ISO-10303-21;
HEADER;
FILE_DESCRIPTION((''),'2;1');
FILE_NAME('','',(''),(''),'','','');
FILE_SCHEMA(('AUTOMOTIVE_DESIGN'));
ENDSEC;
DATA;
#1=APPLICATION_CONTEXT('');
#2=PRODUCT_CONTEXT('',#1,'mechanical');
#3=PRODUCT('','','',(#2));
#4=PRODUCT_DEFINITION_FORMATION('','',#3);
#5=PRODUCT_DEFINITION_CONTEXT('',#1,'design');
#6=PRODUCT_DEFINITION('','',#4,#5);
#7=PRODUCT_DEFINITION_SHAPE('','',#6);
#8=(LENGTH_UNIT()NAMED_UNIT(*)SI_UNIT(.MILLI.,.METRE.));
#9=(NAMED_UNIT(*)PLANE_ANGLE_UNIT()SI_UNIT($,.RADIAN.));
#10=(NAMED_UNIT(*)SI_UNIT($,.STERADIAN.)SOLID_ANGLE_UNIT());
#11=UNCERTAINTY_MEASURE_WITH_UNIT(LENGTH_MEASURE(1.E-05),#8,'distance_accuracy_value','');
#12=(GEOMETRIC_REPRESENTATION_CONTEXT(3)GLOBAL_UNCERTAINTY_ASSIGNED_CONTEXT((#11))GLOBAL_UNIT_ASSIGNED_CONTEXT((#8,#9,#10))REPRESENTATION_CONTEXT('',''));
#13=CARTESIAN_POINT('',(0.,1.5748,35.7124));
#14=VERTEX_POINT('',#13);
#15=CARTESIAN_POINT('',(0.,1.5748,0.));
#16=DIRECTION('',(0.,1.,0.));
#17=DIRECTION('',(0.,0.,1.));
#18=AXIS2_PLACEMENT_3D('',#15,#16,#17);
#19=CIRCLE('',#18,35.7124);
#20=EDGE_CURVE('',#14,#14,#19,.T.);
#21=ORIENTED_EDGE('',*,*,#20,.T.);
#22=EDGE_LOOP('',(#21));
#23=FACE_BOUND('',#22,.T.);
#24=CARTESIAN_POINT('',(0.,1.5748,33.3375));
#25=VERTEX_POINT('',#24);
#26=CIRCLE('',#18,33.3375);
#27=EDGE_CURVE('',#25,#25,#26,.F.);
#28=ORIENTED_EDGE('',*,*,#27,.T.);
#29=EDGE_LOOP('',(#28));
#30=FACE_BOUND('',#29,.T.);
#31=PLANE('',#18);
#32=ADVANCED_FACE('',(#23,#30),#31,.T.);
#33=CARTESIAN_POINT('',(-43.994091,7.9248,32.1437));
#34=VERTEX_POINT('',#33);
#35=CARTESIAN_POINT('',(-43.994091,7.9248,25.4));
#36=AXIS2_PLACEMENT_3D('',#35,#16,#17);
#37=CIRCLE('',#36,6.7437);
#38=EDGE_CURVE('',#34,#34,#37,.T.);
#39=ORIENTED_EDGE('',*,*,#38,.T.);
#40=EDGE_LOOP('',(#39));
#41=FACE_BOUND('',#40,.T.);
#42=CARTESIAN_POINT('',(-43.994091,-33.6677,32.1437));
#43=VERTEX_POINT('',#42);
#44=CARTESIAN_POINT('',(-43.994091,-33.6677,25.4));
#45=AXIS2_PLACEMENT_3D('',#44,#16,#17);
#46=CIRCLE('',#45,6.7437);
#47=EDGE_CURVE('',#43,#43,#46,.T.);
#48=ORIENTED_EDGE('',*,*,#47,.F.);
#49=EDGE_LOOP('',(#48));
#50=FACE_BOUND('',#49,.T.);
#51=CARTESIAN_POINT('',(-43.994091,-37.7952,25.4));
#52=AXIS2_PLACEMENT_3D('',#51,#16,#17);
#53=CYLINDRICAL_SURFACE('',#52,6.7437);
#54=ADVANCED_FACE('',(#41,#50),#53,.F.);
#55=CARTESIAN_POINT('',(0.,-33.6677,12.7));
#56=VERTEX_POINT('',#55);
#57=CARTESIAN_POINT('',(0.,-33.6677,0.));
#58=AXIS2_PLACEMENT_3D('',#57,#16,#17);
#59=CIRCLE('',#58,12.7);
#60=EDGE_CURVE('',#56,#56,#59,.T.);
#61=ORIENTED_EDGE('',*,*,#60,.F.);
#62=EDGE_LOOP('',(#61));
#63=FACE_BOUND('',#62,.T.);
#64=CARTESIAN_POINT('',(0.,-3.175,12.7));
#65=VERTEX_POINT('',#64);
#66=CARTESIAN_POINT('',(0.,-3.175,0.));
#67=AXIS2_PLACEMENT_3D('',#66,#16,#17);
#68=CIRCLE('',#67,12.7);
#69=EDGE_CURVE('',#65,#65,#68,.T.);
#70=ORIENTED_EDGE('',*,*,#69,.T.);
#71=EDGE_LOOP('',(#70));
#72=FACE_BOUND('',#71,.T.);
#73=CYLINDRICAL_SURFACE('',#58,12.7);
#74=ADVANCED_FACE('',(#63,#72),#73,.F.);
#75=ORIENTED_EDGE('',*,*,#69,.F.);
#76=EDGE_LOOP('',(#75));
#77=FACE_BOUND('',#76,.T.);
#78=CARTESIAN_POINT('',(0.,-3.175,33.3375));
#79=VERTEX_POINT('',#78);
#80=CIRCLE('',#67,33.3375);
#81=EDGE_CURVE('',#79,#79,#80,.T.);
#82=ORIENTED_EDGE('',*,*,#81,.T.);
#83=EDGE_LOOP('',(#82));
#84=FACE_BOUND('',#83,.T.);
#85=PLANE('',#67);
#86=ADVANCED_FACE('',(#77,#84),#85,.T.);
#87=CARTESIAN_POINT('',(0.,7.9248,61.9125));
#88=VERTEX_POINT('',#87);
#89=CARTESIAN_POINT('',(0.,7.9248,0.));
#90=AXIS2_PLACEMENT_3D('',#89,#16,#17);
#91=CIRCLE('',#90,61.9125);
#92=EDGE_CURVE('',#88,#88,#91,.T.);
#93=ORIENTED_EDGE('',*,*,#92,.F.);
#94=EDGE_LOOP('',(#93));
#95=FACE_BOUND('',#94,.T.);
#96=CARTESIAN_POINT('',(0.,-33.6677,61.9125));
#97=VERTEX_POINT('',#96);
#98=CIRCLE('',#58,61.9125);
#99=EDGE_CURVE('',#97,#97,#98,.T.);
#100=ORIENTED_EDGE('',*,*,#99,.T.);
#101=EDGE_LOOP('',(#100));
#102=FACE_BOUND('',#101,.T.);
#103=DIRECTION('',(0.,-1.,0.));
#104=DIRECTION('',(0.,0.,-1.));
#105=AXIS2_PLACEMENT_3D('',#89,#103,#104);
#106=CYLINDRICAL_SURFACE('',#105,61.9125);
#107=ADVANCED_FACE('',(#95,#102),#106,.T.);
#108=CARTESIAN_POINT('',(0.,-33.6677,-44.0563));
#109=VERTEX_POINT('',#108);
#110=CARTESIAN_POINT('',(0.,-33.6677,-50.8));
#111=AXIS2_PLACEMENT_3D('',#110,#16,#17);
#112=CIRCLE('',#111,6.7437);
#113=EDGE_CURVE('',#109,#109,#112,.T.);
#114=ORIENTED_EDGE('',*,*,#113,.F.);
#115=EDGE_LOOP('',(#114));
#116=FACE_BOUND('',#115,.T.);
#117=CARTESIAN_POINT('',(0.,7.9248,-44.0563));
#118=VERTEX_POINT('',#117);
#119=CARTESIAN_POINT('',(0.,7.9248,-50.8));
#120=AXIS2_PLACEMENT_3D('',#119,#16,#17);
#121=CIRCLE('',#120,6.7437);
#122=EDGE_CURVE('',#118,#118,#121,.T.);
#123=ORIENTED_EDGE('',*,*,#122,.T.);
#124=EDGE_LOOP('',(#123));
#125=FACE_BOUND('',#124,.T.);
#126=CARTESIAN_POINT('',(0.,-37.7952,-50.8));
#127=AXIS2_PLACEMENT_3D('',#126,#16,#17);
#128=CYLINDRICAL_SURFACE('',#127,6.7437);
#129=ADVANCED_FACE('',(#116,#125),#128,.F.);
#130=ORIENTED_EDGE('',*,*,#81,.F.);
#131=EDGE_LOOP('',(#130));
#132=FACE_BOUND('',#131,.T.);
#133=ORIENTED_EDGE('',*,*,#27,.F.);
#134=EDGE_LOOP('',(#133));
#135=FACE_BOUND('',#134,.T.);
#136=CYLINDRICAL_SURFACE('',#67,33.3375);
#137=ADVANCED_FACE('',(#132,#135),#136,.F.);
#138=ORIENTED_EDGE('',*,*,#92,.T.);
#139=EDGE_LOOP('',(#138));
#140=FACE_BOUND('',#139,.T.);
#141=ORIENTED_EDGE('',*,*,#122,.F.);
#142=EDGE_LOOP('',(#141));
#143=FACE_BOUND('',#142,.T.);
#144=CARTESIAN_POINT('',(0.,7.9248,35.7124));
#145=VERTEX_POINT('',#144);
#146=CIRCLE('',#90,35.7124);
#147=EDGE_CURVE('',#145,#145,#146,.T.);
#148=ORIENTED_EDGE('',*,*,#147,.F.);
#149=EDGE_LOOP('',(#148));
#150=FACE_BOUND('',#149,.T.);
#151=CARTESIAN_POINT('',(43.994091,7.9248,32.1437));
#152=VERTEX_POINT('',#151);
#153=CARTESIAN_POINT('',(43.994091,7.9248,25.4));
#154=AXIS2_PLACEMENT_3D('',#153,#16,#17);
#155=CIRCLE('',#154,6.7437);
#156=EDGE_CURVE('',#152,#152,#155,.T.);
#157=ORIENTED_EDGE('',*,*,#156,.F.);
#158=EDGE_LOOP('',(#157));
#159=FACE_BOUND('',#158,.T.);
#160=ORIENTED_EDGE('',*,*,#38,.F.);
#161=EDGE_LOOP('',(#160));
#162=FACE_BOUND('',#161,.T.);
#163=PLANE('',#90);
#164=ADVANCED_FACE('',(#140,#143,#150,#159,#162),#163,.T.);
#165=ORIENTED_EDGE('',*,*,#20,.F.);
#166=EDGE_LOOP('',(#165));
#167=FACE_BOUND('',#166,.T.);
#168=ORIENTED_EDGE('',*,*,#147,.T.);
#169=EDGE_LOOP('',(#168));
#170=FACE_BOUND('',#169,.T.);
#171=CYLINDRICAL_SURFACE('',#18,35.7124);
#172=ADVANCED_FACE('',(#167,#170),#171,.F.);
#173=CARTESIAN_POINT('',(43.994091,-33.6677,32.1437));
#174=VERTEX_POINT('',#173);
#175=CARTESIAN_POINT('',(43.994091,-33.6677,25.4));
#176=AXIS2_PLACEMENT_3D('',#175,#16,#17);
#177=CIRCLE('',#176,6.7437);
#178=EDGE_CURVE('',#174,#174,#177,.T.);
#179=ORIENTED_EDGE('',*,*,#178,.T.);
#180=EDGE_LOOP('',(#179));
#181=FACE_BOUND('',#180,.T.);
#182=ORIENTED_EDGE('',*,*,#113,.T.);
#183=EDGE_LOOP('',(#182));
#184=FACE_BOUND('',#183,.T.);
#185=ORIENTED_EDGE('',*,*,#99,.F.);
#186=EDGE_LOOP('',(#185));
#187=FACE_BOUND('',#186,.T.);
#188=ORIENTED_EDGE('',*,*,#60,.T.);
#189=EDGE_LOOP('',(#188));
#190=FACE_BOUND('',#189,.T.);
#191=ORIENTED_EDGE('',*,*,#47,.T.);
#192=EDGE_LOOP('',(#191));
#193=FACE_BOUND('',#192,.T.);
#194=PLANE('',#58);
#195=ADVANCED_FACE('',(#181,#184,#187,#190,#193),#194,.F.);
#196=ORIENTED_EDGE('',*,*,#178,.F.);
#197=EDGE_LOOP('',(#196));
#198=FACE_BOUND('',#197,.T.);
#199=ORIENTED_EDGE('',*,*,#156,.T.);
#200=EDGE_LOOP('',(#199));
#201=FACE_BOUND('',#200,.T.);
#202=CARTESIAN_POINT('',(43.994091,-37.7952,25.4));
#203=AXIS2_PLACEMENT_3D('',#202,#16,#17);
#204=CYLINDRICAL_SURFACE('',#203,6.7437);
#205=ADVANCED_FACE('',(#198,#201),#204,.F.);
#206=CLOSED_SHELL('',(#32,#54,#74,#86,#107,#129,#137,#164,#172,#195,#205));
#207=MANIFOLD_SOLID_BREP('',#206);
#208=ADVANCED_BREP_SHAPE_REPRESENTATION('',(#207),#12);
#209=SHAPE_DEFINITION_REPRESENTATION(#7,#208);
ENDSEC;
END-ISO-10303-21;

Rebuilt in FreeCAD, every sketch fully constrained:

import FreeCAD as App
import Part
import Sketcher

V = App.Vector
Q = App.Units.Quantity

doc = App.newDocument("Part")
body = doc.addObject("PartDesign::Body", "Body")

sketch1 = body.newObject("Sketcher::SketchObject", "Sketch")
sketch1.AttachmentSupport = (doc.getObject("XZ_Plane"), [""])
sketch1.MapMode = "FlatFace"
sketch1.addGeometry(Part.Circle(V(0, 0, 0), V(0, 0, 1), 61.9125), False)
sketch1.addConstraint([
    Sketcher.Constraint("Coincident", 0, 3, -1, 1),
    Sketcher.Constraint("Diameter", 0, Q("4.875 in")),
])
pad1 = body.newObject("PartDesign::Pad", "Pad")
pad1.Profile = sketch1
pad1.Type = "TwoLengths"
pad1.Length = Q("0.312 in")
pad1.Length2 = Q("1.3255 in")
pad1.Reversed = True

sketch2 = body.newObject("Sketcher::SketchObject", "Sketch001")
sketch2.AttachmentSupport = (doc.getObject("XZ_Plane"), [""])
sketch2.MapMode = "FlatFace"
sketch2.AttachmentOffset = App.Placement(V(0, 0, -0.25 * 25.4), App.Rotation())
sketch2.addGeometry(Part.Circle(V(0, 0, 0), V(0, 0, 1), 33.3375), False)
sketch2.addConstraint([
    Sketcher.Constraint("Coincident", 0, 3, -1, 1),
    Sketcher.Constraint("Diameter", 0, Q("2.625 in")),
])
pocket1 = body.newObject("PartDesign::Pocket", "Pocket")
pocket1.Profile = sketch2
pocket1.Length = Q("0.375 in")
pocket1.Reversed = True

sketch3 = body.newObject("Sketcher::SketchObject", "Sketch002")
sketch3.AttachmentSupport = (doc.getObject("XZ_Plane"), [""])
sketch3.MapMode = "FlatFace"
sketch3.AttachmentOffset = App.Placement(V(0, 0, -0.25 * 25.4), App.Rotation())
sketch3.addGeometry(Part.Circle(V(0, 0, 0), V(0, 0, 1), 35.7124), False)
sketch3.addConstraint([
    Sketcher.Constraint("Coincident", 0, 3, -1, 1),
    Sketcher.Constraint("Diameter", 0, Q("2.812 in")),
])
pocket2 = body.newObject("PartDesign::Pocket", "Pocket001")
pocket2.Profile = sketch3
pocket2.Type = "TwoLengths"
pocket2.Length = 2.5748
pocket2.Length2 = Q("0.188 in")

sketch4 = body.newObject("Sketcher::SketchObject", "Sketch003")
sketch4.AttachmentSupport = (doc.getObject("XZ_Plane"), [""])
sketch4.MapMode = "FlatFace"
sketch4.AttachmentOffset = App.Placement(V(0, 0, -0.25 * 25.4), App.Rotation())
sketch4.addGeometry(Part.Circle(V(0, 0, 0), V(0, 0, 1), 12.7), False)
sketch4.addConstraint([
    Sketcher.Constraint("Coincident", 0, 3, -1, 1),
    Sketcher.Constraint("Diameter", 0, Q("1 in")),
])
pocket3 = body.newObject("PartDesign::Pocket", "Pocket002")
pocket3.Profile = sketch4
pocket3.Type = "ThroughAll"
pocket3.Reversed = True

sketch5 = body.newObject("Sketcher::SketchObject", "Sketch004")
sketch5.AttachmentSupport = (doc.getObject("XZ_Plane"), [""])
sketch5.MapMode = "FlatFace"
sketch5.AttachmentOffset = App.Placement(V(0, 0, -0.312 * 25.4), App.Rotation())
sketch5.addGeometry([
    Part.Circle(V(0, -50.8, 0), V(0, 0, 1), 6.7437),
    Part.Circle(V(43.994091, 25.4, 0), V(0, 0, 1), 6.7437),
    Part.Circle(V(-43.994091, 25.4, 0), V(0, 0, 1), 6.7437),
], False)
sketch5.addConstraint([
    Sketcher.Constraint("Equal", 0, 1),
    Sketcher.Constraint("Equal", 1, 2),
    Sketcher.Constraint("Symmetric", 1, 3, 2, 3, -2),
    Sketcher.Constraint("PointOnObject", 0, 3, -2),
    Sketcher.Constraint("Diameter", 0, Q("0.531 in")),
    Sketcher.Constraint("DistanceY", 0, 3, -1, 1, Q("2 in")),
    Sketcher.Constraint("DistanceY", -1, 1, 1, 3, Q("1 in")),
    Sketcher.Constraint("DistanceX", -1, 1, 1, 3, Q("43.994091 mm")),
])
pocket4 = body.newObject("PartDesign::Pocket", "Pocket003")
pocket4.Profile = sketch5
pocket4.Length = Q("1.8 in")
pocket4.Reversed = True

doc.recompute()
